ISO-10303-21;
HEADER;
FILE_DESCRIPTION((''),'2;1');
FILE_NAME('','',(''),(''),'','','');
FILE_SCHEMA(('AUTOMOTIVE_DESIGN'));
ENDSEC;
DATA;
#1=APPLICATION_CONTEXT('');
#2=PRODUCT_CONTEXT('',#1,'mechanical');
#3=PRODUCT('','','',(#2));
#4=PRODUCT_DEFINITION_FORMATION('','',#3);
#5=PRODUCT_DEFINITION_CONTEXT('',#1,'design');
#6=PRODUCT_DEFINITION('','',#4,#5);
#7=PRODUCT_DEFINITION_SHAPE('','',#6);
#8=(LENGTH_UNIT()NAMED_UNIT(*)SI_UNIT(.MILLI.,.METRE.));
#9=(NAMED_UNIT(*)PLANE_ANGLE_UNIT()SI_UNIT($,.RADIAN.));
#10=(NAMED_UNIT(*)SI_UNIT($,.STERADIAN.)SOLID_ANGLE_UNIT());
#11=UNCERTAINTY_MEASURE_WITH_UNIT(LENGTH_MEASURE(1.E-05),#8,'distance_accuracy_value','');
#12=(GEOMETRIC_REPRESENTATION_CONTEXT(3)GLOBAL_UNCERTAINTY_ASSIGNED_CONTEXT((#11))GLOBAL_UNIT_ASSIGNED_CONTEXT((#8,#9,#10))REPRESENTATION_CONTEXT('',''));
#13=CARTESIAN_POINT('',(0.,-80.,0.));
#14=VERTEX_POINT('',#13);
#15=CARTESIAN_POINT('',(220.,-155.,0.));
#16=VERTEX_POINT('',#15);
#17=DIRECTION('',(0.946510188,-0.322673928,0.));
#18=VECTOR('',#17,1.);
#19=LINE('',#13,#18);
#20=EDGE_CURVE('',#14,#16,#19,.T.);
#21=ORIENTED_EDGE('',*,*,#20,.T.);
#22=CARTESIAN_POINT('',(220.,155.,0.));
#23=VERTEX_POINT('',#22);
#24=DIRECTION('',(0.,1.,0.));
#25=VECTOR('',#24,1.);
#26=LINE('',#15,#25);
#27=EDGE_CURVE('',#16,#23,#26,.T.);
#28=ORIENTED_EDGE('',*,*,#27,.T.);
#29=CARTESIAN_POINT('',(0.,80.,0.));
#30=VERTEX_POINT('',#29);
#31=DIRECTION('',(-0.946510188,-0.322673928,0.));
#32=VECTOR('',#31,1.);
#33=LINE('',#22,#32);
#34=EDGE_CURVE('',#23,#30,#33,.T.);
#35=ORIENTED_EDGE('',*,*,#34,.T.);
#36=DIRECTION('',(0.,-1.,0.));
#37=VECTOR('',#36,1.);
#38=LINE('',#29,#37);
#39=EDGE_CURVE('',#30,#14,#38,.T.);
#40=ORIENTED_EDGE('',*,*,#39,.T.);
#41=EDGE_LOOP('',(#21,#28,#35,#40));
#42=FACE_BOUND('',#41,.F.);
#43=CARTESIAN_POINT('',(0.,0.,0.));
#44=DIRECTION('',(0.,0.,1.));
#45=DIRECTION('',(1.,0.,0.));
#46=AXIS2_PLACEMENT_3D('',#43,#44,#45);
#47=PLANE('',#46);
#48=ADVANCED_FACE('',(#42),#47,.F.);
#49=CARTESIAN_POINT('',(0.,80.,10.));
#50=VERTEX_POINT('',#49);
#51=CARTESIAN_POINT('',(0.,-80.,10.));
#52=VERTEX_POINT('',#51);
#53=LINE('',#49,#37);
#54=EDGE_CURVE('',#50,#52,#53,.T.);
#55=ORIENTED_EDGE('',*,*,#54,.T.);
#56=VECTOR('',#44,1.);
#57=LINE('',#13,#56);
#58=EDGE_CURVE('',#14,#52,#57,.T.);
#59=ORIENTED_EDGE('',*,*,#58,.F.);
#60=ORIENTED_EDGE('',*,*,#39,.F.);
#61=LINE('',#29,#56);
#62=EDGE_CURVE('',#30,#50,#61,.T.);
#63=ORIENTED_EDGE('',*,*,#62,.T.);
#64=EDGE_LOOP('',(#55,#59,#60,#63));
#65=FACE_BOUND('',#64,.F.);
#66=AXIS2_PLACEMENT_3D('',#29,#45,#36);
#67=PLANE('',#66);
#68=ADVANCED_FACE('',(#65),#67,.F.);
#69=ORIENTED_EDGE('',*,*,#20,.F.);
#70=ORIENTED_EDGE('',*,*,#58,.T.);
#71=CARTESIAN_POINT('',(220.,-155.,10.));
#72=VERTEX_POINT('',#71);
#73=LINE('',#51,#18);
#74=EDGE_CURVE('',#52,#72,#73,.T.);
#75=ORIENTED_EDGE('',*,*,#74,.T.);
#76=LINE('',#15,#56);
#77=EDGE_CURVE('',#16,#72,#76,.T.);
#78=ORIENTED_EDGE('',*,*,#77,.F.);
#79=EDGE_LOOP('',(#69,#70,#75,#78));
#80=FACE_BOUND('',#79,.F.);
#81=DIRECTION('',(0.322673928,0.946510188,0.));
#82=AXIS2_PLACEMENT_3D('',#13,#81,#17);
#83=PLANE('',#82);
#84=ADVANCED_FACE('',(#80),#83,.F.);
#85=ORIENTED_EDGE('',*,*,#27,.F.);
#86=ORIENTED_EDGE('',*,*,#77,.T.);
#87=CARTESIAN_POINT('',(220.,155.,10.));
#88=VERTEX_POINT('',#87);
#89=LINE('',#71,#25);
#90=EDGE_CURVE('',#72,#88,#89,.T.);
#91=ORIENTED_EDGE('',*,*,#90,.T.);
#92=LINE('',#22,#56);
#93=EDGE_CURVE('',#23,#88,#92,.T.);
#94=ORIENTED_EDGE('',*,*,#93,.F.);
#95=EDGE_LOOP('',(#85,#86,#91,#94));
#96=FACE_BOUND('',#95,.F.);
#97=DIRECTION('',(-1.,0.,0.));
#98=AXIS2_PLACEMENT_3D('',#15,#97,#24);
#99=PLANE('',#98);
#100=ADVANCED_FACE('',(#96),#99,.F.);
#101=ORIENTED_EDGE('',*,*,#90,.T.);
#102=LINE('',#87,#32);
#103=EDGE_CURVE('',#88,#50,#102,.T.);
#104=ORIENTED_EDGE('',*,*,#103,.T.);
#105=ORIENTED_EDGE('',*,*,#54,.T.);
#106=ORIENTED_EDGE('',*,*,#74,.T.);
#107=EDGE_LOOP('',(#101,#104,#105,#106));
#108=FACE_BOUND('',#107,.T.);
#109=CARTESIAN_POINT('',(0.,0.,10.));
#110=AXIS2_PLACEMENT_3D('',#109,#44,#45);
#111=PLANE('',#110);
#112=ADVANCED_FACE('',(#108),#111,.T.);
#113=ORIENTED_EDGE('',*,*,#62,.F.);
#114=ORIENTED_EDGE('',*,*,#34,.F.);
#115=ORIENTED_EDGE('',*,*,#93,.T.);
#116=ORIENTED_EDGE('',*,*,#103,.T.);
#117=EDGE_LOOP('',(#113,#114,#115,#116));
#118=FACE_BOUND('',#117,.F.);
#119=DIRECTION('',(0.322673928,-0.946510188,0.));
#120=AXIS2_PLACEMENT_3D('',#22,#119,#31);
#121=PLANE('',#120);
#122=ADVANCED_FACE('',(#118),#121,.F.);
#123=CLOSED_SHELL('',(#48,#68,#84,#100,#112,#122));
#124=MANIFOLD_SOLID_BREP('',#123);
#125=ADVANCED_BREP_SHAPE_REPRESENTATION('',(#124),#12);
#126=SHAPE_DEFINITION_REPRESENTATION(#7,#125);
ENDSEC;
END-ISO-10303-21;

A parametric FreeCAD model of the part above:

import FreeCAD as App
import Part
import Sketcher

V = App.Vector


def add_polygon(sketch, points):
    """Adds a closed chain of lines whose ends are joined by coincident constraints."""
    first, n = sketch.GeometryCount, len(points)
    for a, b in zip(points, points[1:] + points[:1]):
        sketch.addGeometry(Part.LineSegment(App.Vector(*a, 0), App.Vector(*b, 0)), False)
    for i in range(n):
        sketch.addConstraint(Sketcher.Constraint("Coincident", first + i, 2, first + (i + 1) % n, 1))

doc = App.newDocument("Part")
body = doc.addObject("PartDesign::Body", "Body")

# Sketch on XY plane
sketch1 = doc.addObject("Sketcher::SketchObject", "Sketch")
body.addObject(sketch1)
sketch1.AttachmentSupport = (doc.XY_Plane, [""])
sketch1.MapMode = "FlatFace"
add_polygon(sketch1, [(220, 155), (0, 80), (0, -80), (220, -155)])  # lines 0-3
sketch1.addConstraint([
    Sketcher.Constraint("Vertical", 1),
    Sketcher.Constraint("Vertical", 3),
    Sketcher.Constraint("Symmetric", 0, 2, 1, 2, -1, 1),
    Sketcher.Constraint("Equal", 0, 2),
    Sketcher.Constraint("DistanceY", 1, 2, 1, 1, 160.0),
    Sketcher.Constraint("DistanceY", 3, 1, 3, 2, 310.0),
    Sketcher.Constraint("DistanceX", -1, 1, 2, 2, 220.0),
])
pad1 = doc.addObject("PartDesign::Pad", "Pad")
body.addObject(pad1)
pad1.Profile = sketch1
pad1.Length = 10

doc.recompute()
